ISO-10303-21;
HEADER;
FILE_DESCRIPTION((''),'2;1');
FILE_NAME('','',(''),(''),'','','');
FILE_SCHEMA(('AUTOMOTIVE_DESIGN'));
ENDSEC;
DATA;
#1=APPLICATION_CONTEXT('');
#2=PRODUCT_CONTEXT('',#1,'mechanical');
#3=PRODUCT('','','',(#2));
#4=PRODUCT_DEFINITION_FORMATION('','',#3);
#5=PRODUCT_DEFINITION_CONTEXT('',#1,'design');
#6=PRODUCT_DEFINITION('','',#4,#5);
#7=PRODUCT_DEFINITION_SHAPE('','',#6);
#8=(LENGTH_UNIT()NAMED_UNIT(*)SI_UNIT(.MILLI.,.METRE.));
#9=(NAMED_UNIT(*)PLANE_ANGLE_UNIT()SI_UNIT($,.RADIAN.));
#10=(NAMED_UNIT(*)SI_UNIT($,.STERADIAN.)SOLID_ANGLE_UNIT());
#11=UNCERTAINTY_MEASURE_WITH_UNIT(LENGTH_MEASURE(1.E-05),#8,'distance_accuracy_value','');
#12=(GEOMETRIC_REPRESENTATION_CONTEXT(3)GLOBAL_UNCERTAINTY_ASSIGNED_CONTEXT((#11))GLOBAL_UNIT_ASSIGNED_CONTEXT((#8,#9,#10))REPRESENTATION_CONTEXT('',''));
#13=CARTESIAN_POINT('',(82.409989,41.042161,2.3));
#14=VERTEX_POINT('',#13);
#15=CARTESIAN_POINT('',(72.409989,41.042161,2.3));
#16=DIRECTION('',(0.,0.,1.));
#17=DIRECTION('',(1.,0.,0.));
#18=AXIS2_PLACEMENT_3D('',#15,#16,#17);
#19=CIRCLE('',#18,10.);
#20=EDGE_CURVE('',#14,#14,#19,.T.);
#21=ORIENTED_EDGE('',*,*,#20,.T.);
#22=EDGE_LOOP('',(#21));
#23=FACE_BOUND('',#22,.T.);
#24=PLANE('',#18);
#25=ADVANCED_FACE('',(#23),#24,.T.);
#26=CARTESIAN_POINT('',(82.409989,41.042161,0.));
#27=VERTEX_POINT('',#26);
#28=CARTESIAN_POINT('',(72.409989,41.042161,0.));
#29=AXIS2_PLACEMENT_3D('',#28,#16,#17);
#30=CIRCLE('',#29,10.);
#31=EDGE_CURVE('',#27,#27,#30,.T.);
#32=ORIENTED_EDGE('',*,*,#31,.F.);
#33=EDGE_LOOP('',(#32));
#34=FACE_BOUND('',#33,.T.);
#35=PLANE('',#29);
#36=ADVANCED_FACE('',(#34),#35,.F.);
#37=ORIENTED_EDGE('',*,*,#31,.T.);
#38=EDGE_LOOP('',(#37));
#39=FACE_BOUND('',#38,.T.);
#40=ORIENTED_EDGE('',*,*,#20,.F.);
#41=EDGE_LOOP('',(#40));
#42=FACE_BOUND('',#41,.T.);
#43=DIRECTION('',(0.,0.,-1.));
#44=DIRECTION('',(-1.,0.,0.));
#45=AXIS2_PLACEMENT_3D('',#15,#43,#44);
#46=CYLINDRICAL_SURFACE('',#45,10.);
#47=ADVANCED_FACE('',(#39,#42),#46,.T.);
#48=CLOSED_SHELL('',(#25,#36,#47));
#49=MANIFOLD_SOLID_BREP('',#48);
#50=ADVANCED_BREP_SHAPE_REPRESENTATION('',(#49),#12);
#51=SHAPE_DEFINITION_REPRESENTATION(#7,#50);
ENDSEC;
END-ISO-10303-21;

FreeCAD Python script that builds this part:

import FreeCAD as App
import Part
import Sketcher

V = App.Vector
Q = App.Units.Quantity

doc = App.newDocument("Part")
body = doc.addObject("PartDesign::Body", "Body")

# Sketch on XY plane
sketch1 = doc.addObject("Sketcher::SketchObject", "Sketch")
body.addObject(sketch1)
sketch1.AttachmentSupport = (doc.XY_Plane, [""])
sketch1.MapMode = "FlatFace"
sketch1.addGeometry(Part.Circle(V(72, 41, 0), V(0, 0, 1), 10), False)
sketch1.addConstraint([
    Sketcher.Constraint("Diameter", 0, Q("20 mm")),
    Sketcher.Constraint("DistanceX", -1, 1, 0, 3, Q("72.409989 mm")),
    Sketcher.Constraint("DistanceY", -1, 1, 0, 3, Q("41.042161 mm")),
])
pad1 = doc.addObject("PartDesign::Pad", "Pad")
body.addObject(pad1)
pad1.Profile = sketch1
pad1.Length = 2.3

doc.recompute()
